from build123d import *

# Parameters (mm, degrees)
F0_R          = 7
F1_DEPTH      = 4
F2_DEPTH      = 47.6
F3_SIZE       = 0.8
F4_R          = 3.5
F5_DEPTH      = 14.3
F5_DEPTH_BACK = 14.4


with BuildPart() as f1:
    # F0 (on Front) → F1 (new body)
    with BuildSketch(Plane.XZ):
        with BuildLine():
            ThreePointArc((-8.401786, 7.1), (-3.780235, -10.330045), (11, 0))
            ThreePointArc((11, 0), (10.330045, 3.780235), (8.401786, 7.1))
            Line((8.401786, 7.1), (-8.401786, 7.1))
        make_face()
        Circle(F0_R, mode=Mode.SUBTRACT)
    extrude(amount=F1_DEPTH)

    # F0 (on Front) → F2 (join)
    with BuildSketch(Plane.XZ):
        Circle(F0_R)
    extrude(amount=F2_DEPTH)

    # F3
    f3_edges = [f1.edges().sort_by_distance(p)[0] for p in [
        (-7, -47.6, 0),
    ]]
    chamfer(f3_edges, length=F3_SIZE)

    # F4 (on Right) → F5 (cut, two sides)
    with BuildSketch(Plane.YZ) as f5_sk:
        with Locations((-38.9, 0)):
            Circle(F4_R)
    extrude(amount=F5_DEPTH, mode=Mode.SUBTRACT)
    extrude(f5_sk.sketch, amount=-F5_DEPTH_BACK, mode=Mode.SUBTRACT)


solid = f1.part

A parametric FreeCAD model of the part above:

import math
import FreeCAD as App
import Part
import Sketcher

V = App.Vector
Q = App.Units.Quantity


def edges_at(feature, points):
    """Names of the edges that pass closest to the given points."""
    edges = feature.Shape.Edges
    near = lambda p: min(range(len(edges)), key=lambda i: edges[i].distToShape(Part.Vertex(*p))[0])
    return sorted({f"Edge{near(p) + 1}" for p in points})

doc = App.newDocument("Part")
body = doc.addObject("PartDesign::Body", "Body")

# Sketch on XZ plane
sketch1 = body.newObject("Sketcher::SketchObject", "Sketch")
sketch1.AttachmentSupport = (doc.getObject("XZ_Plane"), [""])
sketch1.MapMode = "FlatFace"
sketch1.addGeometry([
    Part.ArcOfCircle(Part.Circle(V(0, 0, 0), V(0, 0, 1), 11), math.radians(140), math.radians(360)),
    Part.ArcOfCircle(Part.Circle(V(0, 0, 0), V(0, 0, 1), 11), math.radians(0), math.radians(40)),
    Part.LineSegment(V(8, 7, 0), V(-8, 7, 0)),
    Part.Circle(V(0, 0, 0), V(0, 0, 1), 7),
], False)
sketch1.addConstraint([
    Sketcher.Constraint("Tangent", 0, 2, 1, 1),
    Sketcher.Constraint("Coincident", 1, 2, 2, 1),
    Sketcher.Constraint("Coincident", 2, 2, 0, 1),
    Sketcher.Constraint("Horizontal", 2),
    Sketcher.Constraint("Coincident", 0, 3, -1, 1),
    Sketcher.Constraint("Coincident", 3, 3, -1, 1),
    Sketcher.Constraint("Equal", 0, 1),
    Sketcher.Constraint("PointOnObject", 0, 2, -1),
    Sketcher.Constraint("Diameter", 3, Q("14 mm")),
    Sketcher.Constraint("Radius", 0, Q("11 mm")),
    Sketcher.Constraint("DistanceY", -1, 1, 1, 2, Q("7.1 mm")),
])
pad1 = body.newObject("PartDesign::Pad", "Pad")
pad1.Profile = sketch1
pad1.Length = 4

# Sketch on XZ plane
sketch2 = body.newObject("Sketcher::SketchObject", "Sketch001")
sketch2.AttachmentSupport = (doc.getObject("XZ_Plane"), [""])
sketch2.MapMode = "FlatFace"
sketch2.addGeometry(Part.Circle(V(0, 0, 0), V(0, 0, 1), 7), False)
sketch2.addConstraint([
    Sketcher.Constraint("Coincident", 0, 3, -1, 1),
    Sketcher.Constraint("Diameter", 0, Q("14 mm")),
])
pad2 = body.newObject("PartDesign::Pad", "Pad001")
pad2.Profile = sketch2
pad2.Length = 47.6
doc.recompute()

chamfer = body.newObject("PartDesign::Chamfer", "Chamfer")
chamfer.Base = (pad2, edges_at(pad2, [(-7, -47.6, 0)]))
chamfer.Size = 0.8

# Sketch on YZ plane
sketch3 = body.newObject("Sketcher::SketchObject", "Sketch002")
sketch3.AttachmentSupport = (doc.getObject("YZ_Plane"), [""])
sketch3.MapMode = "FlatFace"
sketch3.addGeometry(Part.Circle(V(-38.9, 0, 0), V(0, 0, 1), 3.5), False)
sketch3.addConstraint([
    Sketcher.Constraint("PointOnObject", 0, 3, -1),
    Sketcher.Constraint("Diameter", 0, Q("7 mm")),
    Sketcher.Constraint("DistanceX", 0, 3, -1, 1, Q("38.9 mm")),
])
pocket1 = body.newObject("PartDesign::Pocket", "Pocket")
pocket1.Profile = sketch3
pocket1.Type = "ThroughAll"
pocket1.Midplane = True

doc.recompute()
